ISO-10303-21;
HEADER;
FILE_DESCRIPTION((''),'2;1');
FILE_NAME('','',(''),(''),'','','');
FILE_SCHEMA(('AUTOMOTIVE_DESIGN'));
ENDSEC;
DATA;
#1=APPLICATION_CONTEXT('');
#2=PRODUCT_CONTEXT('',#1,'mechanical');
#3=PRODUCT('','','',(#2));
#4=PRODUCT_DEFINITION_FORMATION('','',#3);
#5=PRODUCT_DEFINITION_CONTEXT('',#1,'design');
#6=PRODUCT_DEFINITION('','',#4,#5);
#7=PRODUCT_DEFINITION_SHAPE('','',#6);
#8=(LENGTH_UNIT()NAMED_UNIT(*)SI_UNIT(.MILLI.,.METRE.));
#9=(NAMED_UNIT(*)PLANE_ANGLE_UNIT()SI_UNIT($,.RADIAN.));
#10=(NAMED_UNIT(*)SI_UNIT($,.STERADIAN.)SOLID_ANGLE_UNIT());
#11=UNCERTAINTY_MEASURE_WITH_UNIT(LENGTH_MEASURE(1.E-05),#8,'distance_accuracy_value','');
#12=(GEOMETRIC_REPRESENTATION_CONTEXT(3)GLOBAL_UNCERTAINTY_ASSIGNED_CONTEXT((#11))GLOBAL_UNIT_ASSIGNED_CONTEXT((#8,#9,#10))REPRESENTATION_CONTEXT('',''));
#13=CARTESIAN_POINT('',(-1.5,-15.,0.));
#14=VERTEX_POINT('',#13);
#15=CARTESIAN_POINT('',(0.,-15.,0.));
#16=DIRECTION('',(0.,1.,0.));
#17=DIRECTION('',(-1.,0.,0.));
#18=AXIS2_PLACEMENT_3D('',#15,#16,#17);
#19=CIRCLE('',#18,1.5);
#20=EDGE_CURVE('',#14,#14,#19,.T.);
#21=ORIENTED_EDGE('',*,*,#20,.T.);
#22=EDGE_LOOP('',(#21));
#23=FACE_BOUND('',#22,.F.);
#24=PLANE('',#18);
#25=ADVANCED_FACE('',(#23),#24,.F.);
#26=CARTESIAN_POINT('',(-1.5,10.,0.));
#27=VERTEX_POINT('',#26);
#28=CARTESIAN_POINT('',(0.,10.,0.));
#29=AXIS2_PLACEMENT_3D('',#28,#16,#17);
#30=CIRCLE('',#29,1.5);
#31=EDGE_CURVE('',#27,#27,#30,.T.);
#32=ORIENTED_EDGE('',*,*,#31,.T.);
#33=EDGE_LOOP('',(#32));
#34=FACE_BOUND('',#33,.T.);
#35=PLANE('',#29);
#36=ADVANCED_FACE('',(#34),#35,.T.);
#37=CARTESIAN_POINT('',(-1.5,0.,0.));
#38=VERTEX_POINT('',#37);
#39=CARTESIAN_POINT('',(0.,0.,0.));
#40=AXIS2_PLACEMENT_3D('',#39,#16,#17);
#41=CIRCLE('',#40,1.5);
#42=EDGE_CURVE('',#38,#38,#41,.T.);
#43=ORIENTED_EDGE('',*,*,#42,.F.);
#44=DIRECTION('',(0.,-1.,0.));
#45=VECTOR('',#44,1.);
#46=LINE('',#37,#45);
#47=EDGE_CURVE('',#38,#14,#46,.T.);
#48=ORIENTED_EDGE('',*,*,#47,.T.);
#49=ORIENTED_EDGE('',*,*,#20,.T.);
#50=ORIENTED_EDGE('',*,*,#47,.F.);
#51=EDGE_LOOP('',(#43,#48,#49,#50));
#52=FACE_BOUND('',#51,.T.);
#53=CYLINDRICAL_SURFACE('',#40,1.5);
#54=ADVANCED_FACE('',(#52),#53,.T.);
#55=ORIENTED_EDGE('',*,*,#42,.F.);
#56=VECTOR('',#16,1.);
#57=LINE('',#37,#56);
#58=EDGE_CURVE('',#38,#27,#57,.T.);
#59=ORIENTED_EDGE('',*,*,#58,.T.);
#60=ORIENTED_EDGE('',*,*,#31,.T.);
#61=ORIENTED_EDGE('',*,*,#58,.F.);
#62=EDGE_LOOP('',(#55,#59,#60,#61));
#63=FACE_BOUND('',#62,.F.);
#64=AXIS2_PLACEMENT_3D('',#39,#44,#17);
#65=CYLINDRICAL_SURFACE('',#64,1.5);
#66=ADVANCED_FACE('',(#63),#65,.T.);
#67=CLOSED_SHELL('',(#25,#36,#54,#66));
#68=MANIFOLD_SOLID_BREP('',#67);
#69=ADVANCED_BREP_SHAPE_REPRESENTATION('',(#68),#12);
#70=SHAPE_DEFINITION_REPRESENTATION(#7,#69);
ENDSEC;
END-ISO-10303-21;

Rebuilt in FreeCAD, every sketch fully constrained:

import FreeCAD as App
import Part
import Sketcher

V = App.Vector
Q = App.Units.Quantity

doc = App.newDocument("Part")
body = doc.addObject("PartDesign::Body", "Body")

sketch1 = body.newObject("Sketcher::SketchObject", "Sketch")
sketch1.AttachmentSupport = (doc.getObject("XZ_Plane"), [""])
sketch1.MapMode = "FlatFace"
sketch1.addGeometry(Part.Circle(V(0, 0, 0), V(0, 0, 1), 1.5), False)
sketch1.addConstraint(Sketcher.Constraint("Coincident", 0, 3, -1, 1))
sketch1.addConstraint(Sketcher.Constraint("Diameter", 0, Q("3 mm")))
pad1 = body.newObject("PartDesign::Pad", "Pad")
pad1.Profile = sketch1
pad1.Type = "TwoLengths"
pad1.Length = 10
pad1.Length2 = 15
pad1.Reversed = True

doc.recompute()
